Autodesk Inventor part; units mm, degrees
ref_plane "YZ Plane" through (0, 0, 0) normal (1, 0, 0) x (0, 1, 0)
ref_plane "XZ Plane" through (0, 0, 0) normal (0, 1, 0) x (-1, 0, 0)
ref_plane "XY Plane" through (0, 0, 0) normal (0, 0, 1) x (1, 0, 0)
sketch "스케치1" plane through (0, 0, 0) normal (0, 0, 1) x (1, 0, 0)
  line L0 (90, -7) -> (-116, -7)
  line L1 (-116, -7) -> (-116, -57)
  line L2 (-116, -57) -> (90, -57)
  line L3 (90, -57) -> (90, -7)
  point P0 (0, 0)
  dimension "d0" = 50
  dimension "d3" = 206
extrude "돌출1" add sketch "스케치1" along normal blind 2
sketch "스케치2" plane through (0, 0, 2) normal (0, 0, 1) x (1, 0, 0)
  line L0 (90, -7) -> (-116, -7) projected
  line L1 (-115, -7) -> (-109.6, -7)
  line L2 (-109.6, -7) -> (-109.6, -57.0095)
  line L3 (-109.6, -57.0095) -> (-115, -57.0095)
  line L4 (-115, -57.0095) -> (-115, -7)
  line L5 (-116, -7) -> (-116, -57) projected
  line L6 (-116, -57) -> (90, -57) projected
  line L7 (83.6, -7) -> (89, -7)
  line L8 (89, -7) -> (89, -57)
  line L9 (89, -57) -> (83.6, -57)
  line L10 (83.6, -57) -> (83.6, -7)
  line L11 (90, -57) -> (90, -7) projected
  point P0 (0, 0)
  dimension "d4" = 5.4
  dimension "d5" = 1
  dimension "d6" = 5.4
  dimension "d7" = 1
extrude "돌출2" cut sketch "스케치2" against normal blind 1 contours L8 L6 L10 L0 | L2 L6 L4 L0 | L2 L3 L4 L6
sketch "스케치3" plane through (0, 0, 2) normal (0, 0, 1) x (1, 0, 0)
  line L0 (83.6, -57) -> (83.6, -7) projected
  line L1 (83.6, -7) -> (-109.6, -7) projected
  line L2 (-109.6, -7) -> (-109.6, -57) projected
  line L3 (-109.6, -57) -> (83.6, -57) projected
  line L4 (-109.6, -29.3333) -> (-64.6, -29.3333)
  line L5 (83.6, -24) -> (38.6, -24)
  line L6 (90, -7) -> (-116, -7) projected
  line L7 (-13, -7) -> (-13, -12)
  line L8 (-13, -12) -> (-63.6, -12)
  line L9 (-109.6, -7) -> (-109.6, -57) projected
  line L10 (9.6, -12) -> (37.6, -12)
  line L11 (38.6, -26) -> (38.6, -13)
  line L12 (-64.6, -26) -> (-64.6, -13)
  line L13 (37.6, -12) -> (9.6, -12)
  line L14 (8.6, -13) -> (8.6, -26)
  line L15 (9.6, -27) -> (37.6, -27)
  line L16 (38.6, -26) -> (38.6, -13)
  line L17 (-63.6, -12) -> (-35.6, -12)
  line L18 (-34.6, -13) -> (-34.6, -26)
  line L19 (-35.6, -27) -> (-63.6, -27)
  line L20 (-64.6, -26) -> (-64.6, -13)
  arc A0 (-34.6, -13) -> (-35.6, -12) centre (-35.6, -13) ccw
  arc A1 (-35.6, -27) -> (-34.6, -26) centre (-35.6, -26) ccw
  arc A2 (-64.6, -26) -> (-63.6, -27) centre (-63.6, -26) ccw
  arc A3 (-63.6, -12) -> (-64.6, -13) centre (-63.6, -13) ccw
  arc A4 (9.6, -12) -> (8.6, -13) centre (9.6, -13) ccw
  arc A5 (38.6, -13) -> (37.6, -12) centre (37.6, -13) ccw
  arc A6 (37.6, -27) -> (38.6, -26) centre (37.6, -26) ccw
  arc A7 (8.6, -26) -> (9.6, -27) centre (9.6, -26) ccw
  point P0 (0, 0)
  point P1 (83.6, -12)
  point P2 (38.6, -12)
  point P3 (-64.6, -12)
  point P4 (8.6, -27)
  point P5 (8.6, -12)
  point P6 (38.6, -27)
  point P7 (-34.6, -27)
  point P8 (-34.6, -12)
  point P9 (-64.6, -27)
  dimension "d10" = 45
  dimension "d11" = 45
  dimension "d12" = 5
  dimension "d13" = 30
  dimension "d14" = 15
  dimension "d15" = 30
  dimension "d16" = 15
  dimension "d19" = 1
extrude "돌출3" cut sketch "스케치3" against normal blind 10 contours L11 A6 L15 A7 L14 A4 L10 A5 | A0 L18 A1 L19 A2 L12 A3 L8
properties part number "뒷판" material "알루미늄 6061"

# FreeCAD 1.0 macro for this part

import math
import FreeCAD as App
import Part
import Sketcher

V = App.Vector
Q = App.Units.Quantity

doc = App.newDocument("Part")
body = doc.addObject("PartDesign::Body", "Body")

# Sketch on XY plane
sketch1 = doc.addObject("Sketcher::SketchObject", "Sketch")
body.addObject(sketch1)
sketch1.AttachmentSupport = (doc.XY_Plane, [""])
sketch1.MapMode = "FlatFace"
sketch1.addGeometry(Part.LineSegment(V(90, -57, 0), V(90, -7, 0)), False)
sketch1.addGeometry(Part.LineSegment(V(90, -7, 0), V(-116, -7, 0)), False)
sketch1.addGeometry(Part.LineSegment(V(-116, -7, 0), V(-116, -57, 0)), False)
sketch1.addGeometry(Part.LineSegment(V(-116, -57, 0), V(90, -57, 0)), False)
sketch1.addConstraint(Sketcher.Constraint("Coincident", 0, 2, 1, 1))
sketch1.addConstraint(Sketcher.Constraint("Coincident", 1, 2, 2, 1))
sketch1.addConstraint(Sketcher.Constraint("Coincident", 2, 2, 3, 1))
sketch1.addConstraint(Sketcher.Constraint("Coincident", 3, 2, 0, 1))
sketch1.addConstraint(Sketcher.Constraint("Vertical", 0))
sketch1.addConstraint(Sketcher.Constraint("Horizontal", 1))
sketch1.addConstraint(Sketcher.Constraint("Vertical", 2))
sketch1.addConstraint(Sketcher.Constraint("Horizontal", 3))
sketch1.addConstraint(Sketcher.Constraint("DistanceX", 1, 2, 1, 1, Q("206 mm")))
sketch1.addConstraint(Sketcher.Constraint("DistanceY", 0, 1, 0, 2, Q("50 mm")))
sketch1.addConstraint(Sketcher.Constraint("DistanceX", -1, 1, 0, 2, Q("90 mm")))
sketch1.addConstraint(Sketcher.Constraint("DistanceY", 0, 2, -1, 1, Q("7 mm")))
pad1 = doc.addObject("PartDesign::Pad", "Pad")
body.addObject(pad1)
pad1.Profile = sketch1
pad1.Length = 2

# Sketch on XY plane
sketch2 = doc.addObject("Sketcher::SketchObject", "Sketch001")
body.addObject(sketch2)
sketch2.AttachmentSupport = (doc.XY_Plane, [""])
sketch2.MapMode = "FlatFace"
sketch2.AttachmentOffset = App.Placement(V(0, 0, 2), App.Rotation())
sketch2.addGeometry(Part.LineSegment(V(89, -57, 0), V(89, -7, 0)), False)
sketch2.addGeometry(Part.LineSegment(V(89, -7, 0), V(84, -7, 0)), False)
sketch2.addGeometry(Part.LineSegment(V(84, -7, 0), V(84, -57, 0)), False)
sketch2.addGeometry(Part.LineSegment(V(84, -57, 0), V(89, -57, 0)), False)
sketch2.addGeometry(Part.LineSegment(V(-110, -7, 0), V(-115, -7, 0)), False)
sketch2.addGeometry(Part.LineSegment(V(-115, -7, 0), V(-115, -57, 0)), False)
sketch2.addGeometry(Part.LineSegment(V(-115, -57, 0), V(-110, -57, 0)), False)
sketch2.addGeometry(Part.LineSegment(V(-110, -57, 0), V(-110, -7, 0)), False)
sketch2.addConstraint(Sketcher.Constraint("Coincident", 0, 2, 1, 1))
sketch2.addConstraint(Sketcher.Constraint("Coincident", 1, 2, 2, 1))
sketch2.addConstraint(Sketcher.Constraint("Coincident", 2, 2, 3, 1))
sketch2.addConstraint(Sketcher.Constraint("Coincident", 3, 2, 0, 1))
sketch2.addConstraint(Sketcher.Constraint("Coincident", 4, 2, 5, 1))
sketch2.addConstraint(Sketcher.Constraint("Coincident", 5, 2, 6, 1))
sketch2.addConstraint(Sketcher.Constraint("Coincident", 6, 2, 7, 1))
sketch2.addConstraint(Sketcher.Constraint("Coincident", 7, 2, 4, 1))
sketch2.addConstraint(Sketcher.Constraint("Vertical", 0))
sketch2.addConstraint(Sketcher.Constraint("Horizontal", 1))
sketch2.addConstraint(Sketcher.Constraint("Vertical", 2))
sketch2.addConstraint(Sketcher.Constraint("Horizontal", 3))
sketch2.addConstraint(Sketcher.Constraint("Horizontal", 4))
sketch2.addConstraint(Sketcher.Constraint("Vertical", 5))
sketch2.addConstraint(Sketcher.Constraint("Horizontal", 6))
sketch2.addConstraint(Sketcher.Constraint("Vertical", 7))
sketch2.addConstraint(Sketcher.Constraint("Horizontal", 1, 2, 4, 2))
sketch2.addConstraint(Sketcher.Constraint("Equal", 3, 4))
sketch2.addConstraint(Sketcher.Constraint("DistanceX", 1, 2, 1, 1, Q("5.4 mm")))
sketch2.addConstraint(Sketcher.Constraint("DistanceY", 0, 1, 0, 2, Q("50 mm")))
sketch2.addConstraint(Sketcher.Constraint("DistanceX", -1, 1, 0, 2, Q("89 mm")))
sketch2.addConstraint(Sketcher.Constraint("DistanceY", 0, 2, -1, 1, Q("7 mm")))
sketch2.addConstraint(Sketcher.Constraint("DistanceX", 4, 2, -1, 1, Q("115 mm")))
sketch2.addConstraint(Sketcher.Constraint("DistanceY", 5, 2, 5, 1, Q("50.0095 mm")))
pocket1 = doc.addObject("PartDesign::Pocket", "Pocket")
body.addObject(pocket1)
pocket1.Profile = sketch2
pocket1.Length = 1

# Sketch on XY plane
sketch3 = doc.addObject("Sketcher::SketchObject", "Sketch002")
body.addObject(sketch3)
sketch3.AttachmentSupport = (doc.XY_Plane, [""])
sketch3.MapMode = "FlatFace"
sketch3.AttachmentOffset = App.Placement(V(0, 0, 2), App.Rotation())
sketch3.addGeometry(Part.LineSegment(V(38.6, -26, 0), V(38.6, -13, 0)), False)
sketch3.addGeometry(Part.ArcOfCircle(Part.Circle(V(37.6, -13, 0), V(0, 0, 1), 1), math.radians(0), math.radians(90)), False)
sketch3.addGeometry(Part.LineSegment(V(37.6, -12, 0), V(9.6, -12, 0)), False)
sketch3.addGeometry(Part.ArcOfCircle(Part.Circle(V(9.6, -13, 0), V(0, 0, 1), 1), math.radians(90), math.radians(180)), False)
sketch3.addGeometry(Part.LineSegment(V(8.6, -13, 0), V(8.6, -26, 0)), False)
sketch3.addGeometry(Part.ArcOfCircle(Part.Circle(V(9.6, -26, 0), V(0, 0, 1), 1), math.radians(180), math.radians(270)), False)
sketch3.addGeometry(Part.LineSegment(V(9.6, -27, 0), V(37.6, -27, 0)), False)
sketch3.addGeometry(Part.ArcOfCircle(Part.Circle(V(37.6, -26, 0), V(0, 0, 1), 1), math.radians(-90), math.radians(0)), False)
sketch3.addGeometry(Part.ArcOfCircle(Part.Circle(V(-35.6, -13, 0), V(0, 0, 1), 1), math.radians(0), math.radians(90)), False)
sketch3.addGeometry(Part.LineSegment(V(-35.6, -12, 0), V(-63.6, -12, 0)), False)
sketch3.addGeometry(Part.ArcOfCircle(Part.Circle(V(-63.6, -13, 0), V(0, 0, 1), 1), math.radians(90), math.radians(180)), False)
sketch3.addGeometry(Part.LineSegment(V(-64.6, -13, 0), V(-64.6, -26, 0)), False)
sketch3.addGeometry(Part.ArcOfCircle(Part.Circle(V(-63.6, -26, 0), V(0, 0, 1), 1), math.radians(180), math.radians(270)), False)
sketch3.addGeometry(Part.LineSegment(V(-63.6, -27, 0), V(-35.6, -27, 0)), False)
sketch3.addGeometry(Part.ArcOfCircle(Part.Circle(V(-35.6, -26, 0), V(0, 0, 1), 1), math.radians(-90), math.radians(0)), False)
sketch3.addGeometry(Part.LineSegment(V(-34.6, -26, 0), V(-34.6, -13, 0)), False)
sketch3.addConstraint(Sketcher.Constraint("Tangent", 0, 2, 1, 1))
sketch3.addConstraint(Sketcher.Constraint("Tangent", 1, 2, 2, 1))
sketch3.addConstraint(Sketcher.Constraint("Tangent", 2, 2, 3, 1))
sketch3.addConstraint(Sketcher.Constraint("Tangent", 3, 2, 4, 1))
sketch3.addConstraint(Sketcher.Constraint("Tangent", 4, 2, 5, 1))
sketch3.addConstraint(Sketcher.Constraint("Tangent", 5, 2, 6, 1))
sketch3.addConstraint(Sketcher.Constraint("Tangent", 6, 2, 7, 1))
sketch3.addConstraint(Sketcher.Constraint("Tangent", 7, 2, 0, 1))
sketch3.addConstraint(Sketcher.Constraint("Tangent", 8, 2, 9, 1))
sketch3.addConstraint(Sketcher.Constraint("Tangent", 9, 2, 10, 1))
sketch3.addConstraint(Sketcher.Constraint("Tangent", 10, 2, 11, 1))
sketch3.addConstraint(Sketcher.Constraint("Tangent", 11, 2, 12, 1))
sketch3.addConstraint(Sketcher.Constraint("Tangent", 12, 2, 13, 1))
sketch3.addConstraint(Sketcher.Constraint("Tangent", 13, 2, 14, 1))
sketch3.addConstraint(Sketcher.Constraint("Tangent", 14, 2, 15, 1))
sketch3.addConstraint(Sketcher.Constraint("Tangent", 15, 2, 8, 1))
sketch3.addConstraint(Sketcher.Constraint("Vertical", 0))
sketch3.addConstraint(Sketcher.Constraint("Horizontal", 2))
sketch3.addConstraint(Sketcher.Constraint("Vertical", 4))
sketch3.addConstraint(Sketcher.Constraint("Horizontal", 6))
sketch3.addConstraint(Sketcher.Constraint("Horizontal", 9))
sketch3.addConstraint(Sketcher.Constraint("Vertical", 11))
sketch3.addConstraint(Sketcher.Constraint("Horizontal", 13))
sketch3.addConstraint(Sketcher.Constraint("Vertical", 15))
sketch3.addConstraint(Sketcher.Constraint("Equal", 1, 3))
sketch3.addConstraint(Sketcher.Constraint("Equal", 3, 5))
sketch3.addConstraint(Sketcher.Constraint("Equal", 5, 7))
sketch3.addConstraint(Sketcher.Constraint("Equal", 7, 8))
sketch3.addConstraint(Sketcher.Constraint("Equal", 8, 10))
sketch3.addConstraint(Sketcher.Constraint("Equal", 10, 12))
sketch3.addConstraint(Sketcher.Constraint("Equal", 12, 14))
sketch3.addConstraint(Sketcher.Constraint("Horizontal", 3, 3, 8, 3))
sketch3.addConstraint(Sketcher.Constraint("Horizontal", 7, 3, 12, 3))
sketch3.addConstraint(Sketcher.Constraint("Equal", 6, 9))
sketch3.addConstraint(Sketcher.Constraint("Radius", 1, Q("1 mm")))
sketch3.addConstraint(Sketcher.Constraint("DistanceY", 5, 2, 2, 2, Q("15 mm")))
sketch3.addConstraint(Sketcher.Constraint("DistanceX", 2, 2, 2, 1, Q("28 mm")))
sketch3.addConstraint(Sketcher.Constraint("DistanceY", 1, 3, -1, 1, Q("13 mm")))
sketch3.addConstraint(Sketcher.Constraint("DistanceX", -1, 1, 1, 3, Q("37.6 mm")))
sketch3.addConstraint(Sketcher.Constraint("DistanceX", 8, 3, -1, 1, Q("35.6 mm")))
pocket2 = doc.addObject("PartDesign::Pocket", "Pocket001")
body.addObject(pocket2)
pocket2.Profile = sketch3
pocket2.Length = 10

doc.recompute()
